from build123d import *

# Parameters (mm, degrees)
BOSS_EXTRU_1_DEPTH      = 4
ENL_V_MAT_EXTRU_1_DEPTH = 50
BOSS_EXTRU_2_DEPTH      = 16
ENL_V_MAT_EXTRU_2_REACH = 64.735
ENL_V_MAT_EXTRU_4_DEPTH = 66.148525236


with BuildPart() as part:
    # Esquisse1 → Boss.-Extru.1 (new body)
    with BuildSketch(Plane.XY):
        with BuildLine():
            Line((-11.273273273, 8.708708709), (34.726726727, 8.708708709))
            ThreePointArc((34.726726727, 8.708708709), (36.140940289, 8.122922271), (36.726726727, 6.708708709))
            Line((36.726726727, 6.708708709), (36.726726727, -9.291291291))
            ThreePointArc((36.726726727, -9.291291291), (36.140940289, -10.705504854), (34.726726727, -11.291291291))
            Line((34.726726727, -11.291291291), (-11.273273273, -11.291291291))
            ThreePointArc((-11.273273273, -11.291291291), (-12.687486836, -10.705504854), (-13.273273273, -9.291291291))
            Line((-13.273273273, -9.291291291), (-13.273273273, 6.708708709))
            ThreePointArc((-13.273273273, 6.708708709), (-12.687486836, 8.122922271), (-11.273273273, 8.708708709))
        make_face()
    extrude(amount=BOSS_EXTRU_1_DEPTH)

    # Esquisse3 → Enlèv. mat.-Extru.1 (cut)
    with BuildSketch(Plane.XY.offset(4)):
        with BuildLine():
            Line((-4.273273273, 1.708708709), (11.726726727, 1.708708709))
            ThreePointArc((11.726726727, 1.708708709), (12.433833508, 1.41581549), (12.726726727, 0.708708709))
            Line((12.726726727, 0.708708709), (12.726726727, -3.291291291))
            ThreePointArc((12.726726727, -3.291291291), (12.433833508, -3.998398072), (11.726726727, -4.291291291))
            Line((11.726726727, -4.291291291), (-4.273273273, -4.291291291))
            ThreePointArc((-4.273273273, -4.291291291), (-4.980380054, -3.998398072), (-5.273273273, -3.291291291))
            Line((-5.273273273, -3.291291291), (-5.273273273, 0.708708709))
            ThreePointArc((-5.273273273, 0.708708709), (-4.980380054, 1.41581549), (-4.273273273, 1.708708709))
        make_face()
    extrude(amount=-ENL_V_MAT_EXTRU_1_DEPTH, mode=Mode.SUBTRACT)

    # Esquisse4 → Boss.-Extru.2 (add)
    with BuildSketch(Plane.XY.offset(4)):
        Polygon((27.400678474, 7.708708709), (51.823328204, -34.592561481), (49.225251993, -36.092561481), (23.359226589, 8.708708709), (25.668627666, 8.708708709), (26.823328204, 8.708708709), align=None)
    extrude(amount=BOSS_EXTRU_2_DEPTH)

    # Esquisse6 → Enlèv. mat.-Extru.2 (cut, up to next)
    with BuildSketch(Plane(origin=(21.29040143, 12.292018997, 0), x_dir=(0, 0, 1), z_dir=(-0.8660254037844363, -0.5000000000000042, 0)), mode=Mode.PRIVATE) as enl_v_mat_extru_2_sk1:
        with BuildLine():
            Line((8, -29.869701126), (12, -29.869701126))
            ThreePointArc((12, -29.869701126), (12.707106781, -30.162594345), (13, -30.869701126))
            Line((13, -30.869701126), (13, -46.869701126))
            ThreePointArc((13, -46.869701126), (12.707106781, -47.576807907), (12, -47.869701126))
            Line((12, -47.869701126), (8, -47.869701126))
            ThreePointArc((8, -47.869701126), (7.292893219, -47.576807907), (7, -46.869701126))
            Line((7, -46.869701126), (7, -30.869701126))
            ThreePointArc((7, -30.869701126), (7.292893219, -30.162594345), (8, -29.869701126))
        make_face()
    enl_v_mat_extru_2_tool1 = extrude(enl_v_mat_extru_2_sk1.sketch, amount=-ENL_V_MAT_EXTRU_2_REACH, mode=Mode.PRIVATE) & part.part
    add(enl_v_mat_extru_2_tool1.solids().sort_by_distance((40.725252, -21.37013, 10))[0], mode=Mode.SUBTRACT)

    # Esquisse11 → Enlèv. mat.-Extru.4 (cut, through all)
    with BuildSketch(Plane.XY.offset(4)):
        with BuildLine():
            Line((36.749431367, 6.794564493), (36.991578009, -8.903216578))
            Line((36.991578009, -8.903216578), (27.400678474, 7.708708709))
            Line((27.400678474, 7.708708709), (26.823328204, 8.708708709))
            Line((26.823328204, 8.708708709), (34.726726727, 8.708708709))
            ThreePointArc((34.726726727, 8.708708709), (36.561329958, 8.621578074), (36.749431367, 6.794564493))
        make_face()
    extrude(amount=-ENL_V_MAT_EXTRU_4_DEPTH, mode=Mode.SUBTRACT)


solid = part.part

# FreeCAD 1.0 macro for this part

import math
import FreeCAD as App
import Part
import Sketcher
Q = App.Units.Quantity


def add_polygon(sketch, points):
    """Adds a closed chain of lines whose ends are joined by coincident constraints."""
    first, n = sketch.GeometryCount, len(points)
    for a, b in zip(points, points[1:] + points[:1]):
        sketch.addGeometry(Part.LineSegment(App.Vector(*a, 0), App.Vector(*b, 0)), False)
    for i in range(n):
        sketch.addConstraint(Sketcher.Constraint("Coincident", first + i, 2, first + (i + 1) % n, 1))

doc = App.newDocument("Part")
body = doc.addObject("PartDesign::Body", "Body")

sketch1 = body.newObject("Sketcher::SketchObject", "Sketch")
sketch1.AttachmentSupport = (doc.getObject("XY_Plane"), [""])
sketch1.MapMode = "FlatFace"
sketch1.addGeometry(Part.LineSegment(App.Vector(34.7, 8.7, 0), App.Vector(-11.3, 8.7, 0)), False)
sketch1.addGeometry(Part.ArcOfCircle(Part.Circle(App.Vector(-11.3, 6.7, 0), App.Vector(0, 0, 1), 2), math.radians(90), math.radians(180)), False)
sketch1.addGeometry(Part.LineSegment(App.Vector(-13.3, 6.7, 0), App.Vector(-13.3, -9.3, 0)), False)
sketch1.addGeometry(Part.ArcOfCircle(Part.Circle(App.Vector(-11.3, -9.3, 0), App.Vector(0, 0, 1), 2), math.radians(180), math.radians(270)), False)
sketch1.addGeometry(Part.LineSegment(App.Vector(-11.3, -11.3, 0), App.Vector(34.7, -11.3, 0)), False)
sketch1.addGeometry(Part.ArcOfCircle(Part.Circle(App.Vector(34.7, -9.3, 0), App.Vector(0, 0, 1), 2), math.radians(-90), math.radians(0)), False)
sketch1.addGeometry(Part.LineSegment(App.Vector(36.7, -9.3, 0), App.Vector(36.7, 6.7, 0)), False)
sketch1.addGeometry(Part.ArcOfCircle(Part.Circle(App.Vector(34.7, 6.7, 0), App.Vector(0, 0, 1), 2), math.radians(0), math.radians(90)), False)
sketch1.addConstraint(Sketcher.Constraint("Tangent", 0, 2, 1, 1))
sketch1.addConstraint(Sketcher.Constraint("Tangent", 1, 2, 2, 1))
sketch1.addConstraint(Sketcher.Constraint("Tangent", 2, 2, 3, 1))
sketch1.addConstraint(Sketcher.Constraint("Tangent", 3, 2, 4, 1))
sketch1.addConstraint(Sketcher.Constraint("Tangent", 4, 2, 5, 1))
sketch1.addConstraint(Sketcher.Constraint("Tangent", 5, 2, 6, 1))
sketch1.addConstraint(Sketcher.Constraint("Tangent", 6, 2, 7, 1))
sketch1.addConstraint(Sketcher.Constraint("Tangent", 7, 2, 0, 1))
sketch1.addConstraint(Sketcher.Constraint("Horizontal", 0))
sketch1.addConstraint(Sketcher.Constraint("Vertical", 2))
sketch1.addConstraint(Sketcher.Constraint("Horizontal", 4))
sketch1.addConstraint(Sketcher.Constraint("Vertical", 6))
sketch1.addConstraint(Sketcher.Constraint("Equal", 1, 3))
sketch1.addConstraint(Sketcher.Constraint("Equal", 3, 5))
sketch1.addConstraint(Sketcher.Constraint("Equal", 5, 7))
sketch1.addConstraint(Sketcher.Constraint("Radius", 1, 2.0))
sketch1.addConstraint(Sketcher.Constraint("DistanceX", 0, 2, 0, 1, 46.0))
sketch1.addConstraint(Sketcher.Constraint("DistanceY", 2, 2, 2, 1, 16.0))
sketch1.addConstraint(Sketcher.Constraint("DistanceY", -1, 1, 1, 3, 6.708709))
sketch1.addConstraint(Sketcher.Constraint("DistanceX", 1, 3, -1, 1, 11.273273))
pad1 = body.newObject("PartDesign::Pad", "Pad")
pad1.Profile = sketch1
pad1.Length = 4

sketch2 = body.newObject("Sketcher::SketchObject", "Sketch001")
sketch2.AttachmentSupport = (doc.getObject("XY_Plane"), [""])
sketch2.MapMode = "FlatFace"
sketch2.AttachmentOffset = App.Placement(App.Vector(0, 0, 4), App.Rotation())
sketch2.addGeometry(Part.LineSegment(App.Vector(11.7, 1.7, 0), App.Vector(-4.3, 1.7, 0)), False)
sketch2.addGeometry(Part.ArcOfCircle(Part.Circle(App.Vector(-4.3, 0.7, 0), App.Vector(0, 0, 1), 1), math.radians(90), math.radians(180)), False)
sketch2.addGeometry(Part.LineSegment(App.Vector(-5.3, 0.7, 0), App.Vector(-5.3, -3.3, 0)), False)
sketch2.addGeometry(Part.ArcOfCircle(Part.Circle(App.Vector(-4.3, -3.3, 0), App.Vector(0, 0, 1), 1), math.radians(-180), math.radians(-90)), False)
sketch2.addGeometry(Part.LineSegment(App.Vector(-4.3, -4.3, 0), App.Vector(11.7, -4.3, 0)), False)
sketch2.addGeometry(Part.ArcOfCircle(Part.Circle(App.Vector(11.7, -3.3, 0), App.Vector(0, 0, 1), 1), math.radians(-90), math.radians(0)), False)
sketch2.addGeometry(Part.LineSegment(App.Vector(12.7, -3.3, 0), App.Vector(12.7, 0.7, 0)), False)
sketch2.addGeometry(Part.ArcOfCircle(Part.Circle(App.Vector(11.7, 0.7, 0), App.Vector(0, 0, 1), 1), math.radians(0), math.radians(90)), False)
sketch2.addConstraint(Sketcher.Constraint("Tangent", 0, 2, 1, 1))
sketch2.addConstraint(Sketcher.Constraint("Tangent", 1, 2, 2, 1))
sketch2.addConstraint(Sketcher.Constraint("Tangent", 2, 2, 3, 1))
sketch2.addConstraint(Sketcher.Constraint("Tangent", 3, 2, 4, 1))
sketch2.addConstraint(Sketcher.Constraint("Tangent", 4, 2, 5, 1))
sketch2.addConstraint(Sketcher.Constraint("Tangent", 5, 2, 6, 1))
sketch2.addConstraint(Sketcher.Constraint("Tangent", 6, 2, 7, 1))
sketch2.addConstraint(Sketcher.Constraint("Tangent", 7, 2, 0, 1))
sketch2.addConstraint(Sketcher.Constraint("Horizontal", 0))
sketch2.addConstraint(Sketcher.Constraint("Vertical", 2))
sketch2.addConstraint(Sketcher.Constraint("Horizontal", 4))
sketch2.addConstraint(Sketcher.Constraint("Vertical", 6))
sketch2.addConstraint(Sketcher.Constraint("Equal", 1, 3))
sketch2.addConstraint(Sketcher.Constraint("Equal", 3, 5))
sketch2.addConstraint(Sketcher.Constraint("Equal", 5, 7))
sketch2.addConstraint(Sketcher.Constraint("Radius", 1, 1.0))
sketch2.addConstraint(Sketcher.Constraint("DistanceX", 0, 2, 0, 1, 16.0))
sketch2.addConstraint(Sketcher.Constraint("DistanceY", 2, 2, 2, 1, 4.0))
sketch2.addConstraint(Sketcher.Constraint("DistanceY", -1, 1, 1, 3, 0.708709))
sketch2.addConstraint(Sketcher.Constraint("DistanceX", 1, 3, -1, 1, 4.273273))
pocket1 = body.newObject("PartDesign::Pocket", "Pocket")
pocket1.Profile = sketch2
pocket1.Length = 50

sketch3 = body.newObject("Sketcher::SketchObject", "Sketch002")
sketch3.AttachmentSupport = (doc.getObject("XY_Plane"), [""])
sketch3.MapMode = "FlatFace"
sketch3.AttachmentOffset = App.Placement(App.Vector(0, 0, 4), App.Rotation())
add_polygon(sketch3, [(51.8, -34.6), (27.4, 7.7), (26.8, 8.7), (23.4, 8.7), (49.2, -36.1)])
sketch3.addConstraint(Sketcher.Constraint("Horizontal", 2))
sketch3.addConstraint(Sketcher.Constraint("Parallel", 0, 1))
sketch3.addConstraint(Sketcher.Constraint("Parallel", 1, 3))
sketch3.addConstraint(Sketcher.Constraint("Perpendicular", 3, 4))
sketch3.addConstraint(Sketcher.Constraint("Angle", 0, Q("120 deg")))
sketch3.addConstraint(Sketcher.Constraint("Distance", 4, 3.0))
sketch3.addConstraint(Sketcher.Constraint("DistanceY", 0, 2, 1, 2, 1.0))
sketch3.addConstraint(Sketcher.Constraint("DistanceX", 1, 2, 4, 2, 25.0))
sketch3.addConstraint(Sketcher.Constraint("DistanceX", -1, 1, 0, 2, 27.400678))
sketch3.addConstraint(Sketcher.Constraint("DistanceY", -1, 1, 0, 2, 7.708709))
pad2 = body.newObject("PartDesign::Pad", "Pad001")
pad2.Profile = sketch3
pad2.Length = 16

sketch4 = body.newObject("Sketcher::SketchObject", "Sketch003")
sketch4.Placement = App.Placement(App.Vector(21.290401, 12.292019, 0), App.Rotation(App.Vector(0, 0, 1), App.Vector(-0.5, 0.866025404, 0), App.Vector(-0.866025404, -0.5, 0), "ZXY"))
sketch4.addGeometry(Part.LineSegment(App.Vector(12, -29.9, 0), App.Vector(8, -29.9, 0)), False)
sketch4.addGeometry(Part.ArcOfCircle(Part.Circle(App.Vector(8, -30.9, 0), App.Vector(0, 0, 1), 1), math.radians(90), math.radians(180)), False)
sketch4.addGeometry(Part.LineSegment(App.Vector(7, -30.9, 0), App.Vector(7, -46.9, 0)), False)
sketch4.addGeometry(Part.ArcOfCircle(Part.Circle(App.Vector(8, -46.9, 0), App.Vector(0, 0, 1), 1), math.radians(-180), math.radians(-90)), False)
sketch4.addGeometry(Part.LineSegment(App.Vector(8, -47.9, 0), App.Vector(12, -47.9, 0)), False)
sketch4.addGeometry(Part.ArcOfCircle(Part.Circle(App.Vector(12, -46.9, 0), App.Vector(0, 0, 1), 1), math.radians(-90), math.radians(0)), False)
sketch4.addGeometry(Part.LineSegment(App.Vector(13, -46.9, 0), App.Vector(13, -30.9, 0)), False)
sketch4.addGeometry(Part.ArcOfCircle(Part.Circle(App.Vector(12, -30.9, 0), App.Vector(0, 0, 1), 1), math.radians(0), math.radians(90)), False)
sketch4.addConstraint(Sketcher.Constraint("Tangent", 0, 2, 1, 1))
sketch4.addConstraint(Sketcher.Constraint("Tangent", 1, 2, 2, 1))
sketch4.addConstraint(Sketcher.Constraint("Tangent", 2, 2, 3, 1))
sketch4.addConstraint(Sketcher.Constraint("Tangent", 3, 2, 4, 1))
sketch4.addConstraint(Sketcher.Constraint("Tangent", 4, 2, 5, 1))
sketch4.addConstraint(Sketcher.Constraint("Tangent", 5, 2, 6, 1))
sketch4.addConstraint(Sketcher.Constraint("Tangent", 6, 2, 7, 1))
sketch4.addConstraint(Sketcher.Constraint("Tangent", 7, 2, 0, 1))
sketch4.addConstraint(Sketcher.Constraint("Horizontal", 0))
sketch4.addConstraint(Sketcher.Constraint("Vertical", 2))
sketch4.addConstraint(Sketcher.Constraint("Horizontal", 4))
sketch4.addConstraint(Sketcher.Constraint("Vertical", 6))
sketch4.addConstraint(Sketcher.Constraint("Equal", 1, 3))
sketch4.addConstraint(Sketcher.Constraint("Equal", 3, 5))
sketch4.addConstraint(Sketcher.Constraint("Equal", 5, 7))
sketch4.addConstraint(Sketcher.Constraint("Radius", 1, 1.0))
sketch4.addConstraint(Sketcher.Constraint("DistanceX", 0, 2, 0, 1, 4.0))
sketch4.addConstraint(Sketcher.Constraint("DistanceY", 2, 2, 2, 1, 16.0))
sketch4.addConstraint(Sketcher.Constraint("DistanceX", -1, 1, 1, 3, 8.0))
sketch4.addConstraint(Sketcher.Constraint("DistanceY", 1, 3, -1, 1, 30.869701))
pocket2 = body.newObject("PartDesign::Pocket", "Pocket001")
pocket2.Profile = sketch4
pocket2.Type = "UpToFirst"

sketch5 = body.newObject("Sketcher::SketchObject", "Sketch004")
sketch5.AttachmentSupport = (doc.getObject("XY_Plane"), [""])
sketch5.MapMode = "FlatFace"
sketch5.AttachmentOffset = App.Placement(App.Vector(0, 0, 4), App.Rotation())
sketch5.addGeometry(Part.LineSegment(App.Vector(37, -8.9, 0), App.Vector(36.7, 6.8, 0)), False)
sketch5.addGeometry(Part.ArcOfCircle(Part.Circle(App.Vector(35.6, 7.6, 0), App.Vector(0, 0, 1), 1.4), math.radians(-35), math.radians(128)), False)
sketch5.addGeometry(Part.LineSegment(App.Vector(34.7, 8.7, 0), App.Vector(26.8, 8.7, 0)), False)
sketch5.addGeometry(Part.LineSegment(App.Vector(26.8, 8.7, 0), App.Vector(27.4, 7.7, 0)), False)
sketch5.addGeometry(Part.LineSegment(App.Vector(27.4, 7.7, 0), App.Vector(37, -8.9, 0)), False)
sketch5.addConstraint(Sketcher.Constraint("Coincident", 0, 2, 1, 1))
sketch5.addConstraint(Sketcher.Constraint("Coincident", 1, 2, 2, 1))
sketch5.addConstraint(Sketcher.Constraint("Coincident", 2, 2, 3, 1))
sketch5.addConstraint(Sketcher.Constraint("Coincident", 3, 2, 4, 1))
sketch5.addConstraint(Sketcher.Constraint("Coincident", 4, 2, 0, 1))
sketch5.addConstraint(Sketcher.Constraint("Horizontal", 2))
sketch5.addConstraint(Sketcher.Constraint("Parallel", 3, 4))
sketch5.addConstraint(Sketcher.Constraint("Angle", 3, Q("-60 deg")))
sketch5.addConstraint(Sketcher.Constraint("DistanceY", 3, 2, 2, 2, 1.0))
sketch5.addConstraint(Sketcher.Constraint("Radius", 1, 1.408239))
sketch5.addConstraint(Sketcher.Constraint("DistanceX", 2, 2, 2, 1, 7.903399))
sketch5.addConstraint(Sketcher.Constraint("Distance", 4, 19.181799))
sketch5.addConstraint(Sketcher.Constraint("Distance", 0, 15.699649))
sketch5.addConstraint(Sketcher.Constraint("DistanceX", -1, 1, 1, 3, 35.593381))
sketch5.addConstraint(Sketcher.Constraint("DistanceX", -1, 1, 0, 2, 36.749431))
sketch5.addConstraint(Sketcher.Constraint("DistanceY", -1, 1, 1, 2, 8.708709))
pocket3 = body.newObject("PartDesign::Pocket", "Pocket002")
pocket3.Profile = sketch5
pocket3.Type = "ThroughAll"

doc.recompute()
